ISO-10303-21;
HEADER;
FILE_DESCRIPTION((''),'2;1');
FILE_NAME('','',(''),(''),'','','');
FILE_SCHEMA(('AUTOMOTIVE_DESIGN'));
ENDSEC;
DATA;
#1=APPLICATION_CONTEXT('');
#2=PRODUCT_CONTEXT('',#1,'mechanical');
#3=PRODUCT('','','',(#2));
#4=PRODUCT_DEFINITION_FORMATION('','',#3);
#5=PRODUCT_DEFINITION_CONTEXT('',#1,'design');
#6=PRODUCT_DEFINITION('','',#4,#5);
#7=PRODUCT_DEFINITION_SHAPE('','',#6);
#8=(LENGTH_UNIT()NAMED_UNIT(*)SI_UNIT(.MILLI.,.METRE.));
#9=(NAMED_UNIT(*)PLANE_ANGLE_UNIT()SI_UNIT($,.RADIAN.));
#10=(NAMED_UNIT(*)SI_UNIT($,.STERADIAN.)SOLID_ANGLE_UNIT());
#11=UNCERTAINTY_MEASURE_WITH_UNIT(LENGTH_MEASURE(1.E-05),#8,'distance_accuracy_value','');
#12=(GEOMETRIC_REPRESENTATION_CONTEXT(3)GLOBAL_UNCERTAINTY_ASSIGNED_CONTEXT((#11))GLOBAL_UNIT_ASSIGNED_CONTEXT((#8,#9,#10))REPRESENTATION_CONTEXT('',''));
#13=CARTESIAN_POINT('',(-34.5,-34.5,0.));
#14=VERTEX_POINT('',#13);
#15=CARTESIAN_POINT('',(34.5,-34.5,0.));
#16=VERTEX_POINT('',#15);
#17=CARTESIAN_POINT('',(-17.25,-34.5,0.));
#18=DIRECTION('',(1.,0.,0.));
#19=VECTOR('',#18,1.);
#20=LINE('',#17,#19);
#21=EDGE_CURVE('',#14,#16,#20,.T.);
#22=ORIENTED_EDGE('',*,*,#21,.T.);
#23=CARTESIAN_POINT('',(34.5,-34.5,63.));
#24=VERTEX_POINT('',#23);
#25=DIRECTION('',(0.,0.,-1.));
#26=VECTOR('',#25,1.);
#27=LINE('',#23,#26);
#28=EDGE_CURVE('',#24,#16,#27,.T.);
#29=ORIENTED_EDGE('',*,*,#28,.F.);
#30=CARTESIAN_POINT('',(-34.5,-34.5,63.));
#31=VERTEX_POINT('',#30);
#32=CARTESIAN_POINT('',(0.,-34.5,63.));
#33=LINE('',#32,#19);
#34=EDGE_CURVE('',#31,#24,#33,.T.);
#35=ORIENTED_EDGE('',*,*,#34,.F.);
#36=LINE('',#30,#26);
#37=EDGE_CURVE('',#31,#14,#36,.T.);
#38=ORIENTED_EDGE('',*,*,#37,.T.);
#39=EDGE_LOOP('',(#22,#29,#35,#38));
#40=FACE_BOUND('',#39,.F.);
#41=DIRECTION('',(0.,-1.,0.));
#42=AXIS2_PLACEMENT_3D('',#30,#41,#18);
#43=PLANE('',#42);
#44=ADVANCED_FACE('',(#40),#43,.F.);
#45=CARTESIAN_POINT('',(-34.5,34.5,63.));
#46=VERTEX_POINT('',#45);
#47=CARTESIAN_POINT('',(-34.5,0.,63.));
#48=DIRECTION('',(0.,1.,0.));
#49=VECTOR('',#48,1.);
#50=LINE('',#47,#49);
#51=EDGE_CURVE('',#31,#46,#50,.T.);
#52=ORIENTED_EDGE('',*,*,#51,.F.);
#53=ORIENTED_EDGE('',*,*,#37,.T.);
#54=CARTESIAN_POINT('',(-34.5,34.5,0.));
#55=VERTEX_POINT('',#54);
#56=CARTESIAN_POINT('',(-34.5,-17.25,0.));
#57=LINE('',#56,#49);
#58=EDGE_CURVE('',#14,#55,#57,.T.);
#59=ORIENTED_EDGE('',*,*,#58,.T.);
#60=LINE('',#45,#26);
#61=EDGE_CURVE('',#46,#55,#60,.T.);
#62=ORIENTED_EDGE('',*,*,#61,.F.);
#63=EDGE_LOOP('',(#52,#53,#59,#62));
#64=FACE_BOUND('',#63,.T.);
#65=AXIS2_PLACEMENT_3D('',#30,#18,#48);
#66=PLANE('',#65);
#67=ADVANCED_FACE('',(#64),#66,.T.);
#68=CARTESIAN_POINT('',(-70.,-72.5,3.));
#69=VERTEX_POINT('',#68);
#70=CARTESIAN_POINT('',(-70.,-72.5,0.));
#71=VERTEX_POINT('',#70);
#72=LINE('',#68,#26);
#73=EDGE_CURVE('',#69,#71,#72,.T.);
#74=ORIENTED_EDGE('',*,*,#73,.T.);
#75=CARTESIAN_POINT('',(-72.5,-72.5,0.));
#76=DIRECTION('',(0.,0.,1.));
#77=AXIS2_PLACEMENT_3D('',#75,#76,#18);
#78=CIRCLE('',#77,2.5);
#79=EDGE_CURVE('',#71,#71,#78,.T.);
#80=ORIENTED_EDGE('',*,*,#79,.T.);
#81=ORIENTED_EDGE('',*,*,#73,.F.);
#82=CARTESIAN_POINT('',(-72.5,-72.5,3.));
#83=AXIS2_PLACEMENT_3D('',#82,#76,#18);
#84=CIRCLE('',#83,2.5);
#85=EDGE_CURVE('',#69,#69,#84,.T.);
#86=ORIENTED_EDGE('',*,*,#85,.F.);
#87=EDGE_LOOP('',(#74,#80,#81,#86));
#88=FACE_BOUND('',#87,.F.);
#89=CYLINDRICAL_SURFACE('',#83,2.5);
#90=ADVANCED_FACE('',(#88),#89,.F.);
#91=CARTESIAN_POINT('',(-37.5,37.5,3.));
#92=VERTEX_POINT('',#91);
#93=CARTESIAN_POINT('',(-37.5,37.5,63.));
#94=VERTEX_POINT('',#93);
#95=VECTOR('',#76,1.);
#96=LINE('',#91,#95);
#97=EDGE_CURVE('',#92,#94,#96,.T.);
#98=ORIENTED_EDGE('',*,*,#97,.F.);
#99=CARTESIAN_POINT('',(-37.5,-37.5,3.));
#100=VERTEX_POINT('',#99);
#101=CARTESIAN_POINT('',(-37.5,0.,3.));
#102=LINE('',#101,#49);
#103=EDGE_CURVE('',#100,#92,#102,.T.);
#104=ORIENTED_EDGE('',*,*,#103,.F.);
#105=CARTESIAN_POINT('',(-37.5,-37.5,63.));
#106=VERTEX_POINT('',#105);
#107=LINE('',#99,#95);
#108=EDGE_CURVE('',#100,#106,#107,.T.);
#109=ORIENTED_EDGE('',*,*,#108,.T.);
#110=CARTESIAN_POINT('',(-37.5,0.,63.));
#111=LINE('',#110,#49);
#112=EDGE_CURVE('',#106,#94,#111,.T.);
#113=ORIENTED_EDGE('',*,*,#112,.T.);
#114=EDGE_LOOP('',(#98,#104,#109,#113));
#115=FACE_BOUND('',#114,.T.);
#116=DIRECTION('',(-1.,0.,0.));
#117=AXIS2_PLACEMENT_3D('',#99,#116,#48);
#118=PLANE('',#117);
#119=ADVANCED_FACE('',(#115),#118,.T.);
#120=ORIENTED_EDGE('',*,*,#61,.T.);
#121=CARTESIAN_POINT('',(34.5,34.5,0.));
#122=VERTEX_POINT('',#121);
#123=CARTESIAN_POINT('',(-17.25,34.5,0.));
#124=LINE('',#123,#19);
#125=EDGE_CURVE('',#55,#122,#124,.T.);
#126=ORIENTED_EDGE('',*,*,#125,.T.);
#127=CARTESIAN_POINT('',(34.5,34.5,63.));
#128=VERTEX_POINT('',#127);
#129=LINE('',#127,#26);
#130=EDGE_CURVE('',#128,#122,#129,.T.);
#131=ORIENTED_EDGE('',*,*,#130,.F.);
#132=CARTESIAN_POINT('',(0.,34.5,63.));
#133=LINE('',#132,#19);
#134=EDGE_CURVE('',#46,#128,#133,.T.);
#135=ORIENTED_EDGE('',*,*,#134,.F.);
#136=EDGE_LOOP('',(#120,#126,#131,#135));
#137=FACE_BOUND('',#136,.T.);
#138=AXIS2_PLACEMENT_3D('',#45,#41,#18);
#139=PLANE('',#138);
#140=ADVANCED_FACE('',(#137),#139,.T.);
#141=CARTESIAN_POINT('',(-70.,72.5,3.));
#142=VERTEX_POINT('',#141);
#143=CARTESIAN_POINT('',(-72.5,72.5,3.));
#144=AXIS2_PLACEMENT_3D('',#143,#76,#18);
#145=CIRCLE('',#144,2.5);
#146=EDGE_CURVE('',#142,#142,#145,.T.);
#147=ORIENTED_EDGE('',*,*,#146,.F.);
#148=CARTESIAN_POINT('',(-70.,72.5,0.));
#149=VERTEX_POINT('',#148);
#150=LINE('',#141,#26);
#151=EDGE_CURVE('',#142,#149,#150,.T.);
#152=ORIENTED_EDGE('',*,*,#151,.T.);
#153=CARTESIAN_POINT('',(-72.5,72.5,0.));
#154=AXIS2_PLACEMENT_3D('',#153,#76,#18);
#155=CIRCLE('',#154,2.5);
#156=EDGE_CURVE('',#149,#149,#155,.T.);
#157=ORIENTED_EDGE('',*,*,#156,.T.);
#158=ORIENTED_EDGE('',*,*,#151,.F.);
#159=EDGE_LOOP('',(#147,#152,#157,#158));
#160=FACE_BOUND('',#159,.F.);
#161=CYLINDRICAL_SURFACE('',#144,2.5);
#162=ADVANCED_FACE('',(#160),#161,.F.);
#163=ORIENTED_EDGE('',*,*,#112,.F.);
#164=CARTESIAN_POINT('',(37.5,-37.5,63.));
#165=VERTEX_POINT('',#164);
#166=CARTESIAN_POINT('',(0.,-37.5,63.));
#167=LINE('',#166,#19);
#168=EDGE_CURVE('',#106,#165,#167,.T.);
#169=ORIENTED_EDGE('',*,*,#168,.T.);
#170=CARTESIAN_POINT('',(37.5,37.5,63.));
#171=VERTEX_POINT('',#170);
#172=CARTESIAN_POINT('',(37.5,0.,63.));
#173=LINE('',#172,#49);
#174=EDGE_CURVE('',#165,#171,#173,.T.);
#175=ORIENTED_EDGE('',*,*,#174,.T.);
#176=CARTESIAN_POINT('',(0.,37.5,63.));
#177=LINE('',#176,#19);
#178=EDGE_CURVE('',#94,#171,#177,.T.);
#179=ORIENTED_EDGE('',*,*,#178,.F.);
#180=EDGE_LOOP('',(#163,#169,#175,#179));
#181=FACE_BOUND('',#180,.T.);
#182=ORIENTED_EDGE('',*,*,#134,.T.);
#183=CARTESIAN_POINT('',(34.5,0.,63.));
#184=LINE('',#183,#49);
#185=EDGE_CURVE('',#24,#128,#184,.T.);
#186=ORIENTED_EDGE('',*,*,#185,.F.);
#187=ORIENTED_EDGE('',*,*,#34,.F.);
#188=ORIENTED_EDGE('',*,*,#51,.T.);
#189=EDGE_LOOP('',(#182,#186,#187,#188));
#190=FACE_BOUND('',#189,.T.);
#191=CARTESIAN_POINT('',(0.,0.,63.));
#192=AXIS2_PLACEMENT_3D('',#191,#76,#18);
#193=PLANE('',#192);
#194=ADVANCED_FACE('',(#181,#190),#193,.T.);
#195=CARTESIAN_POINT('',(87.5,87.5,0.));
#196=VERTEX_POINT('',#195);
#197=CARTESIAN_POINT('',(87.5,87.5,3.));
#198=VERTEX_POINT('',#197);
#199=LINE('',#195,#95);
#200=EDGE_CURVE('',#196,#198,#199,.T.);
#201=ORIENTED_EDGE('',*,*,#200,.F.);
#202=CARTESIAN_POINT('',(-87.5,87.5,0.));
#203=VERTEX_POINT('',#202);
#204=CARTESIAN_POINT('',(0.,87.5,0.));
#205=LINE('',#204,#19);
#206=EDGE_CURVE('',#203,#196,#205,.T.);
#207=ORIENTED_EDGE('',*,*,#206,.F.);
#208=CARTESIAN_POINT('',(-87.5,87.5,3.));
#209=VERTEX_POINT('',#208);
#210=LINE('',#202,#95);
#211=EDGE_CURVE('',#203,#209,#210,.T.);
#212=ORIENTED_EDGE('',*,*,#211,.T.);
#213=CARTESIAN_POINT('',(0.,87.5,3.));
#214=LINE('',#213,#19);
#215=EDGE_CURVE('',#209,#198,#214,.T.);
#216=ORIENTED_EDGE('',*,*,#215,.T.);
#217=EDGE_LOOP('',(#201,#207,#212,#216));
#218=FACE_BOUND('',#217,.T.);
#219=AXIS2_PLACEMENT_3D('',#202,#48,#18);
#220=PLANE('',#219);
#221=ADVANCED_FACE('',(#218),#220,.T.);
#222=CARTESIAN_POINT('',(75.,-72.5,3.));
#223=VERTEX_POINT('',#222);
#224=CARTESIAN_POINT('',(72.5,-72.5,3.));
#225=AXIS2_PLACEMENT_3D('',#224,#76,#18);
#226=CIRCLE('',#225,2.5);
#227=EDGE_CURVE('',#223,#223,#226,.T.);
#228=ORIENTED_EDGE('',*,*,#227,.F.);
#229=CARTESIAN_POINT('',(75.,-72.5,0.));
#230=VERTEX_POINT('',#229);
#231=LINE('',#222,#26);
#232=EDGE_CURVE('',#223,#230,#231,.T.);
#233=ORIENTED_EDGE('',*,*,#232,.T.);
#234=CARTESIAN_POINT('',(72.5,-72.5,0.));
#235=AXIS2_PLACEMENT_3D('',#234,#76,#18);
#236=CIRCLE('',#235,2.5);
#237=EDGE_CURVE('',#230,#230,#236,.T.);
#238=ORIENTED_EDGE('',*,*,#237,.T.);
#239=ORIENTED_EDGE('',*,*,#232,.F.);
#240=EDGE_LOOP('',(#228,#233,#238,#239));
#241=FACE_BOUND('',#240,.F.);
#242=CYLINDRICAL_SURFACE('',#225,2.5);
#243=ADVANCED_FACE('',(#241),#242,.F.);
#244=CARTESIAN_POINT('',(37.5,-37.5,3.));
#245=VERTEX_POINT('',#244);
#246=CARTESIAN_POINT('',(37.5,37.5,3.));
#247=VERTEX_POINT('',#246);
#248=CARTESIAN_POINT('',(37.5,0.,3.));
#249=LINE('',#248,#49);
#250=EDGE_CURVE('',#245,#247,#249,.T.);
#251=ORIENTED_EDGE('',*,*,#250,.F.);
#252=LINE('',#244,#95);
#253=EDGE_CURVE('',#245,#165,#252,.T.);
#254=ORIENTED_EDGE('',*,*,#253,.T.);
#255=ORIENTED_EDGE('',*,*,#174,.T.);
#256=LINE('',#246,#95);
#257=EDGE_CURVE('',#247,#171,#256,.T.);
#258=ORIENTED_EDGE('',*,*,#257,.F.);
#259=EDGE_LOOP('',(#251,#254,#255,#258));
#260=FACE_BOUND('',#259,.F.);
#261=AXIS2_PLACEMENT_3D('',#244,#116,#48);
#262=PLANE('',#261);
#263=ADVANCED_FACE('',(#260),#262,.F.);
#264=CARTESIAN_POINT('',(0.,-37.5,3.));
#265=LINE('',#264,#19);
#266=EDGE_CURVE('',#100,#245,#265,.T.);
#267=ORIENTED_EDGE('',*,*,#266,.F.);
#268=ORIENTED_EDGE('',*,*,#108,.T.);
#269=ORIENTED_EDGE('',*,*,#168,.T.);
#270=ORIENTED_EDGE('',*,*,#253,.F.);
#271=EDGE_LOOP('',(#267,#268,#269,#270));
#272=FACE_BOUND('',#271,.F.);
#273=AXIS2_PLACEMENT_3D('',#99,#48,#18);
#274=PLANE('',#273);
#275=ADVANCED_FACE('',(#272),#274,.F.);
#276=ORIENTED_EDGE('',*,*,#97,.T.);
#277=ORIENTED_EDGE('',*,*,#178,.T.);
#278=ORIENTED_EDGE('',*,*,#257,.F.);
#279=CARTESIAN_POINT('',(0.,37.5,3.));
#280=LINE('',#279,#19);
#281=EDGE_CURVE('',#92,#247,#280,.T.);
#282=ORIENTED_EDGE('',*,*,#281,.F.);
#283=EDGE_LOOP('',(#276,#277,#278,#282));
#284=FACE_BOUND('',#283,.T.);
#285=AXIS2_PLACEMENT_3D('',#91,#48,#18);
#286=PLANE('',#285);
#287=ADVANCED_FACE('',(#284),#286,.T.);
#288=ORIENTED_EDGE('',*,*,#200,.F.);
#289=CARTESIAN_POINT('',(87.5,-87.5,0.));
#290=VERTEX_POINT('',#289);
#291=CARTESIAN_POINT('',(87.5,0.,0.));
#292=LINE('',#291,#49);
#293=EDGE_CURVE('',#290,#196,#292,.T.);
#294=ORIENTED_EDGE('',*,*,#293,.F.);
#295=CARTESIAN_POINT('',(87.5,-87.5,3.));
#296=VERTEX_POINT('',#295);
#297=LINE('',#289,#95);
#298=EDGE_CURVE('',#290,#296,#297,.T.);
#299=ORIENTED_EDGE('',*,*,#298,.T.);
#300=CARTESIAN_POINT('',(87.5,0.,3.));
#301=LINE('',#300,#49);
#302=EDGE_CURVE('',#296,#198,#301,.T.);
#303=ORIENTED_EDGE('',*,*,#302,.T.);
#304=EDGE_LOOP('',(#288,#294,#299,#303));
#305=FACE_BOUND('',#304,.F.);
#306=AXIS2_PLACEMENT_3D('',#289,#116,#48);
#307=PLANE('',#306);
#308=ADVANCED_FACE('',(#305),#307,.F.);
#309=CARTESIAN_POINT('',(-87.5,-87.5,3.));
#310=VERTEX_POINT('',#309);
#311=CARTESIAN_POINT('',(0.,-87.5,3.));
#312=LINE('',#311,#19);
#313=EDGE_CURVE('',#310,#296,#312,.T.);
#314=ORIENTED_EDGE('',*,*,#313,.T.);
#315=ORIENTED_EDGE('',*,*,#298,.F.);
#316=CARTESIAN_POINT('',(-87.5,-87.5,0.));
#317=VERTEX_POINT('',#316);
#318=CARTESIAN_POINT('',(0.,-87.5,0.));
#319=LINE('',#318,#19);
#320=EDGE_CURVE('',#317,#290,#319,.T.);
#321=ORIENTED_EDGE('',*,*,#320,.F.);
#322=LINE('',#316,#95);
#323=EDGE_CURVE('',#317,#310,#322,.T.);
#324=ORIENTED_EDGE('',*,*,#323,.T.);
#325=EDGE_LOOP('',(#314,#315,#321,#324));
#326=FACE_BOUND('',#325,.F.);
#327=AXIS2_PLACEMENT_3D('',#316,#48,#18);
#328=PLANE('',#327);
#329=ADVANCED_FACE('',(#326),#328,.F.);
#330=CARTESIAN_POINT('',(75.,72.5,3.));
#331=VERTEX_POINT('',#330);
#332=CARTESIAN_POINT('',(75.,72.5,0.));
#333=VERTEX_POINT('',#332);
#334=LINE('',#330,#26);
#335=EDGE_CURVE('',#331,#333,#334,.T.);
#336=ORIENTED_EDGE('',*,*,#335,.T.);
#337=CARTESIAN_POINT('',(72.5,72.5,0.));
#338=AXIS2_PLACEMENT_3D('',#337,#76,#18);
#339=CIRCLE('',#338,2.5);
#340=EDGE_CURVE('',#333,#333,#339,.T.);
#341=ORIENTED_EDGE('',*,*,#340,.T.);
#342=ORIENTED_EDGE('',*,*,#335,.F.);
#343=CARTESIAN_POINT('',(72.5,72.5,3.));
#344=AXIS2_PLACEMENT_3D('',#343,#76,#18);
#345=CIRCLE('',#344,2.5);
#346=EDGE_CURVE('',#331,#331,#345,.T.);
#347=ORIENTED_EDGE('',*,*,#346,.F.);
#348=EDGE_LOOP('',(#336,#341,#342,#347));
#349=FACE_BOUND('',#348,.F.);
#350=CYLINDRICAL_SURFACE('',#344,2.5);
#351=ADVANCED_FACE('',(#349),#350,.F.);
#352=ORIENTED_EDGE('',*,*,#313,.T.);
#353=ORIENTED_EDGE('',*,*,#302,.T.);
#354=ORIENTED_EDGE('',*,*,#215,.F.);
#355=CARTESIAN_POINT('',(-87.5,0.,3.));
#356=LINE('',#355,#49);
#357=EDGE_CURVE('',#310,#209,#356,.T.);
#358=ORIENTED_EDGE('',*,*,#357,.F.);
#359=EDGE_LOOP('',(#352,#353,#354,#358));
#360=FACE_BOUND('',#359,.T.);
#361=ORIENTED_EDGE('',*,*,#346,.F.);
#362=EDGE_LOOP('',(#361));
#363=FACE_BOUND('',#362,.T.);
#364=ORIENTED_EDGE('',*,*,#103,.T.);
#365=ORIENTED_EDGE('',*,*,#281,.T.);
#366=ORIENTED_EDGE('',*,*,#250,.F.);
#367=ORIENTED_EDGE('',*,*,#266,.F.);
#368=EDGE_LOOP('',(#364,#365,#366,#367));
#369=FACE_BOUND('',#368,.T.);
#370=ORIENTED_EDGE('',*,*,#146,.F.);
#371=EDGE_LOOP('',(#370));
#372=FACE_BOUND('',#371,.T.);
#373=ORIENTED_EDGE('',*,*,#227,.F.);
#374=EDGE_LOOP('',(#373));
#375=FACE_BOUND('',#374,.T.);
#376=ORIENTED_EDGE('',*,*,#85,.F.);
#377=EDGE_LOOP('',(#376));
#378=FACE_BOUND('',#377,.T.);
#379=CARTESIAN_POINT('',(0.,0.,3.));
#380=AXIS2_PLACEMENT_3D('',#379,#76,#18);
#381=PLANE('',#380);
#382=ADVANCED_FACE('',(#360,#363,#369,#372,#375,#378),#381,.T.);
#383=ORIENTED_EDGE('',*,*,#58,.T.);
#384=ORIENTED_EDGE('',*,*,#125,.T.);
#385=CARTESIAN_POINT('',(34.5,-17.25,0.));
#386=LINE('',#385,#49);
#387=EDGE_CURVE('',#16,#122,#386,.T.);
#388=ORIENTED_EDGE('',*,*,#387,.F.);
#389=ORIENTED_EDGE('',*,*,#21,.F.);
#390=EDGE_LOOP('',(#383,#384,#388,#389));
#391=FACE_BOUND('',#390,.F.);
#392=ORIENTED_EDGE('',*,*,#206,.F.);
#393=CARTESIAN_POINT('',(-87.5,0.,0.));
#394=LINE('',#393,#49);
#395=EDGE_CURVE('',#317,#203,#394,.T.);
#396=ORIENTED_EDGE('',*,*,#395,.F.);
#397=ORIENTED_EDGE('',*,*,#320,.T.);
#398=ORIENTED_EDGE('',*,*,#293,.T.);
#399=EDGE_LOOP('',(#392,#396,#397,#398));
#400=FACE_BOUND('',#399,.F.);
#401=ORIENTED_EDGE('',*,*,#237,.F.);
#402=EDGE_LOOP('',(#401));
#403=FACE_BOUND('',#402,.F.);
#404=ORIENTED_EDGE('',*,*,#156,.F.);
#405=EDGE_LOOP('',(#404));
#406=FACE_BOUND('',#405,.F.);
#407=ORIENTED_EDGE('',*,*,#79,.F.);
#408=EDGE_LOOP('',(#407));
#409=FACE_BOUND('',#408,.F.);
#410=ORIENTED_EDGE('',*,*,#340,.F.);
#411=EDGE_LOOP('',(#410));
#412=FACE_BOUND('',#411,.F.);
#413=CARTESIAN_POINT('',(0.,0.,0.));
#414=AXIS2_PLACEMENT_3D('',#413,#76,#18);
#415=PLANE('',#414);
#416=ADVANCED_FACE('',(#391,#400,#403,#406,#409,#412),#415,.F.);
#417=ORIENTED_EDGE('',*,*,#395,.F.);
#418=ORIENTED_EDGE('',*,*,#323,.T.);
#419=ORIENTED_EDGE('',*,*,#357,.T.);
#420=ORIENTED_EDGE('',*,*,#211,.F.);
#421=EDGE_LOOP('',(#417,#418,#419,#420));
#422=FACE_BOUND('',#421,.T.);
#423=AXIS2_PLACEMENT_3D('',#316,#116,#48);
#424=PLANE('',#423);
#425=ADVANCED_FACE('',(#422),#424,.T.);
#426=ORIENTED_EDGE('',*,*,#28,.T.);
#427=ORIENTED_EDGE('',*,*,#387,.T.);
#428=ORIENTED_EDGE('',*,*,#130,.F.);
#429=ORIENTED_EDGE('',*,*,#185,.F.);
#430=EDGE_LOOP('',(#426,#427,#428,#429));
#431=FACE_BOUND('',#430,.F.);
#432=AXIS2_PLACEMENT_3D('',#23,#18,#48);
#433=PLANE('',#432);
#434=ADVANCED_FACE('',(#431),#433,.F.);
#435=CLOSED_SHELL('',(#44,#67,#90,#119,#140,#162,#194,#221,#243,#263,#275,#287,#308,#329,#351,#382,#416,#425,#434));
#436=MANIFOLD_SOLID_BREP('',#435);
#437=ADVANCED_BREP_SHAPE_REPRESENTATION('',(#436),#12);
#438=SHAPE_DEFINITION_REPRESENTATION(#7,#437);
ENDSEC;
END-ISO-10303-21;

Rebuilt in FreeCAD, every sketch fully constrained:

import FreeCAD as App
import Part
import Sketcher

V = App.Vector
Q = App.Units.Quantity

doc = App.newDocument("Part")
body = doc.addObject("PartDesign::Body", "Body")

# Sketch on XY plane
sketch1 = body.newObject("Sketcher::SketchObject", "Sketch")
sketch1.AttachmentSupport = (doc.getObject("XY_Plane"), [""])
sketch1.MapMode = "FlatFace"
sketch1.addGeometry(Part.LineSegment(V(-87.5, 87.5, 0), V(-87.5, -87.5, 0)), False)
sketch1.addGeometry(Part.LineSegment(V(-87.5, -87.5, 0), V(87.5, -87.5, 0)), False)
sketch1.addGeometry(Part.LineSegment(V(87.5, -87.5, 0), V(87.5, 87.5, 0)), False)
sketch1.addGeometry(Part.LineSegment(V(87.5, 87.5, 0), V(-87.5, 87.5, 0)), False)
sketch1.addConstraint(Sketcher.Constraint("Coincident", 0, 2, 1, 1))
sketch1.addConstraint(Sketcher.Constraint("Coincident", 1, 2, 2, 1))
sketch1.addConstraint(Sketcher.Constraint("Coincident", 2, 2, 3, 1))
sketch1.addConstraint(Sketcher.Constraint("Coincident", 3, 2, 0, 1))
sketch1.addConstraint(Sketcher.Constraint("Vertical", 0))
sketch1.addConstraint(Sketcher.Constraint("Horizontal", 1))
sketch1.addConstraint(Sketcher.Constraint("Vertical", 2))
sketch1.addConstraint(Sketcher.Constraint("Horizontal", 3))
sketch1.addConstraint(Sketcher.Constraint("Symmetric", 0, 2, 2, 2, -1, 1))
sketch1.addConstraint(Sketcher.Constraint("Equal", 3, 0))
sketch1.addConstraint(Sketcher.Constraint("DistanceX", 1, 1, 1, 2, Q("175 mm")))
pad1 = body.newObject("PartDesign::Pad", "Pad")
pad1.Profile = sketch1
pad1.Length = 3

# Sketch on XY plane
sketch2 = body.newObject("Sketcher::SketchObject", "Sketch001")
sketch2.AttachmentSupport = (doc.getObject("XY_Plane"), [""])
sketch2.MapMode = "FlatFace"
sketch2.AttachmentOffset = App.Placement(V(0, 0, 3), App.Rotation())
sketch2.addGeometry(Part.Circle(V(-72.5, 72.5, 0), V(0, 0, 1), 2.5), False)
sketch2.addGeometry(Part.Circle(V(72.5, 72.5, 0), V(0, 0, 1), 2.5), False)
sketch2.addGeometry(Part.Circle(V(-72.5, -72.5, 0), V(0, 0, 1), 2.5), False)
sketch2.addGeometry(Part.Circle(V(72.5, -72.5, 0), V(0, 0, 1), 2.5), False)
sketch2.addConstraint(Sketcher.Constraint("Equal", 0, 1))
sketch2.addConstraint(Sketcher.Constraint("Equal", 1, 2))
sketch2.addConstraint(Sketcher.Constraint("Equal", 2, 3))
sketch2.addConstraint(Sketcher.Constraint("Symmetric", 1, 3, 2, 3, -1, 1))
sketch2.addConstraint(Sketcher.Constraint("Symmetric", 0, 3, 3, 3, -1, 1))
sketch2.addConstraint(Sketcher.Constraint("Symmetric", 0, 3, 1, 3, -2))
sketch2.addConstraint(Sketcher.Constraint("Diameter", 0, Q("5 mm")))
sketch2.addConstraint(Sketcher.Constraint("DistanceX", 0, 3, 1, 3, Q("145 mm")))
sketch2.addConstraint(Sketcher.Constraint("DistanceY", 2, 3, 0, 3, Q("145 mm")))
pocket1 = body.newObject("PartDesign::Pocket", "Pocket")
pocket1.Profile = sketch2
pocket1.Type = "ThroughAll"

# Sketch on XY plane
sketch3 = body.newObject("Sketcher::SketchObject", "Sketch002")
sketch3.AttachmentSupport = (doc.getObject("XY_Plane"), [""])
sketch3.MapMode = "FlatFace"
sketch3.AttachmentOffset = App.Placement(V(0, 0, 3), App.Rotation())
sketch3.addGeometry(Part.LineSegment(V(-37.5, 37.5, 0), V(-37.5, -37.5, 0)), False)
sketch3.addGeometry(Part.LineSegment(V(-37.5, -37.5, 0), V(37.5, -37.5, 0)), False)
sketch3.addGeometry(Part.LineSegment(V(37.5, -37.5, 0), V(37.5, 37.5, 0)), False)
sketch3.addGeometry(Part.LineSegment(V(37.5, 37.5, 0), V(-37.5, 37.5, 0)), False)
sketch3.addConstraint(Sketcher.Constraint("Coincident", 0, 2, 1, 1))
sketch3.addConstraint(Sketcher.Constraint("Coincident", 1, 2, 2, 1))
sketch3.addConstraint(Sketcher.Constraint("Coincident", 2, 2, 3, 1))
sketch3.addConstraint(Sketcher.Constraint("Coincident", 3, 2, 0, 1))
sketch3.addConstraint(Sketcher.Constraint("Vertical", 0))
sketch3.addConstraint(Sketcher.Constraint("Horizontal", 1))
sketch3.addConstraint(Sketcher.Constraint("Vertical", 2))
sketch3.addConstraint(Sketcher.Constraint("Horizontal", 3))
sketch3.addConstraint(Sketcher.Constraint("Symmetric", 0, 2, 2, 2, -1, 1))
sketch3.addConstraint(Sketcher.Constraint("Equal", 3, 0))
sketch3.addConstraint(Sketcher.Constraint("DistanceX", 1, 1, 1, 2, Q("75 mm")))
pad2 = body.newObject("PartDesign::Pad", "Pad001")
pad2.Profile = sketch3
pad2.Length = 60

# Sketch on XY plane
sketch4 = body.newObject("Sketcher::SketchObject", "Sketch003")
sketch4.AttachmentSupport = (doc.getObject("XY_Plane"), [""])
sketch4.MapMode = "FlatFace"
sketch4.AttachmentOffset = App.Placement(V(0, 0, 63), App.Rotation())
sketch4.addGeometry(Part.LineSegment(V(-34.5, 34.5, 0), V(-34.5, -34.5, 0)), False)
sketch4.addGeometry(Part.LineSegment(V(-34.5, -34.5, 0), V(34.5, -34.5, 0)), False)
sketch4.addGeometry(Part.LineSegment(V(34.5, -34.5, 0), V(34.5, 34.5, 0)), False)
sketch4.addGeometry(Part.LineSegment(V(34.5, 34.5, 0), V(-34.5, 34.5, 0)), False)
sketch4.addConstraint(Sketcher.Constraint("Coincident", 0, 2, 1, 1))
sketch4.addConstraint(Sketcher.Constraint("Coincident", 1, 2, 2, 1))
sketch4.addConstraint(Sketcher.Constraint("Coincident", 2, 2, 3, 1))
sketch4.addConstraint(Sketcher.Constraint("Coincident", 3, 2, 0, 1))
sketch4.addConstraint(Sketcher.Constraint("Vertical", 0))
sketch4.addConstraint(Sketcher.Constraint("Horizontal", 1))
sketch4.addConstraint(Sketcher.Constraint("Vertical", 2))
sketch4.addConstraint(Sketcher.Constraint("Horizontal", 3))
sketch4.addConstraint(Sketcher.Constraint("Symmetric", 0, 2, 2, 2, -1, 1))
sketch4.addConstraint(Sketcher.Constraint("Equal", 3, 0))
sketch4.addConstraint(Sketcher.Constraint("DistanceX", 1, 1, 1, 2, Q("69 mm")))
pocket2 = body.newObject("PartDesign::Pocket", "Pocket001")
pocket2.Profile = sketch4
pocket2.Type = "ThroughAll"

doc.recompute()
